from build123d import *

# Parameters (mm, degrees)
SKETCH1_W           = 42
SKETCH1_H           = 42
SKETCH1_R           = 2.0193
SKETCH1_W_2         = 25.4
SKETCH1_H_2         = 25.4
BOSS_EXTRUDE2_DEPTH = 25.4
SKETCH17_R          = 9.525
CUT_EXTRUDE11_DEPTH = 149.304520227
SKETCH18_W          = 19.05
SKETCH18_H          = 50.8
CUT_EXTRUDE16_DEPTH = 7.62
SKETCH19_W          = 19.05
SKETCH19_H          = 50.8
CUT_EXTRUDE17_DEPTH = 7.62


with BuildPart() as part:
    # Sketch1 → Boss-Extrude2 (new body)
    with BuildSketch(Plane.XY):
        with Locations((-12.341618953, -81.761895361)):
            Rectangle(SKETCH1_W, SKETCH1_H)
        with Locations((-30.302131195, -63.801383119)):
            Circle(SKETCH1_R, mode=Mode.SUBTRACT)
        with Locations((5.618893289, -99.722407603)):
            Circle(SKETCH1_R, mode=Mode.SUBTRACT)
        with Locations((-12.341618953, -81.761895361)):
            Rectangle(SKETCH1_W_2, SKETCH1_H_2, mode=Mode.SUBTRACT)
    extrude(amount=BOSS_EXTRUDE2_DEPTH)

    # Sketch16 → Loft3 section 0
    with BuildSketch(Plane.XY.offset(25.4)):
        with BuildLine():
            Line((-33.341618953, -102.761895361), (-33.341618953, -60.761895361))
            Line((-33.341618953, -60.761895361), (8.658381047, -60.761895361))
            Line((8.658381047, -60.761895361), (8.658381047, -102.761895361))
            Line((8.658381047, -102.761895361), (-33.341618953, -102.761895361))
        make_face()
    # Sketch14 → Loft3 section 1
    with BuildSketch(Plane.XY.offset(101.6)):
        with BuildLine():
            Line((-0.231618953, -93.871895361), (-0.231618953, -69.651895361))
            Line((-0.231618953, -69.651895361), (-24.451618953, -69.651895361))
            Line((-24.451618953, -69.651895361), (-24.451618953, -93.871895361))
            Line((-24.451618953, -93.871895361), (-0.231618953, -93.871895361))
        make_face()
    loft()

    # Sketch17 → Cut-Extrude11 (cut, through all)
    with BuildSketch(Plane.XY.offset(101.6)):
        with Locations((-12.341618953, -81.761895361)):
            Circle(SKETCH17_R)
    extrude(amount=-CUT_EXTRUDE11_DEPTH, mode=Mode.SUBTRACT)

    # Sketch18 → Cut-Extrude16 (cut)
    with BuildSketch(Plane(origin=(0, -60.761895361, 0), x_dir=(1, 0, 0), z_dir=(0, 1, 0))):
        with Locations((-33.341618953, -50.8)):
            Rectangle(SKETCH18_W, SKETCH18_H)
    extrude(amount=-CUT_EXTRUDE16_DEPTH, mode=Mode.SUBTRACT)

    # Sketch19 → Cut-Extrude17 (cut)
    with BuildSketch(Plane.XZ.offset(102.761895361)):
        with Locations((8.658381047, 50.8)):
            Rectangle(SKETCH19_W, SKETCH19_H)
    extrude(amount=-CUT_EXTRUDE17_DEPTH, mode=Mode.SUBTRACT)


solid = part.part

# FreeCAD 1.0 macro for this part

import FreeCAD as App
import Part
import Sketcher
Q = App.Units.Quantity

doc = App.newDocument("Part")
body = doc.addObject("PartDesign::Body", "Body")

# Sketch on XY plane
sketch1 = doc.addObject("Sketcher::SketchObject", "Sketch")
body.addObject(sketch1)
sketch1.AttachmentSupport = (doc.XY_Plane, [""])
sketch1.MapMode = "FlatFace"
sketch1.addGeometry([
    Part.LineSegment(App.Vector(-33.341619, -60.761895, 0), App.Vector(-33.341619, -102.761895, 0)),  # 0
    Part.LineSegment(App.Vector(-33.341619, -102.761895, 0), App.Vector(8.658381, -102.761895, 0)),  # 1
    Part.LineSegment(App.Vector(8.658381, -102.761895, 0), App.Vector(8.658381, -60.761895, 0)),  # 2
    Part.LineSegment(App.Vector(8.658381, -60.761895, 0), App.Vector(-33.341619, -60.761895, 0)),  # 3
    Part.Circle(App.Vector(5.618893, -99.722408, 0), App.Vector(0, 0, 1), 2.0193),  # 4
    Part.LineSegment(App.Vector(0.358381, -94.461895, 0), App.Vector(-25.041619, -94.461895, 0)),  # 5
    Part.LineSegment(App.Vector(-25.041619, -94.461895, 0), App.Vector(-25.041619, -69.061895, 0)),  # 6
    Part.LineSegment(App.Vector(-25.041619, -69.061895, 0), App.Vector(0.358381, -69.061895, 0)),  # 7
    Part.LineSegment(App.Vector(0.358381, -69.061895, 0), App.Vector(0.358381, -94.461895, 0)),  # 8
    Part.Circle(App.Vector(-30.302131, -63.801383, 0), App.Vector(0, 0, 1), 2.0193),  # 9
], False)
sketch1.addConstraint([
    Sketcher.Constraint("Coincident", 0, 2, 1, 1),
    Sketcher.Constraint("Coincident", 1, 2, 2, 1),
    Sketcher.Constraint("Coincident", 2, 2, 3, 1),
    Sketcher.Constraint("Coincident", 3, 2, 0, 1),
    Sketcher.Constraint("Coincident", 5, 2, 6, 1),
    Sketcher.Constraint("Coincident", 6, 2, 7, 1),
    Sketcher.Constraint("Coincident", 7, 2, 8, 1),
    Sketcher.Constraint("Coincident", 8, 2, 5, 1),
    Sketcher.Constraint("Vertical", 0),
    Sketcher.Constraint("Horizontal", 1),
    Sketcher.Constraint("Vertical", 2),
    Sketcher.Constraint("Horizontal", 3),
    Sketcher.Constraint("Horizontal", 5),
    Sketcher.Constraint("Vertical", 6),
    Sketcher.Constraint("Horizontal", 7),
    Sketcher.Constraint("Vertical", 8),
    Sketcher.Constraint("Equal", 4, 9),
    Sketcher.Constraint("Equal", 3, 0),
    Sketcher.Constraint("Equal", 7, 6),
    Sketcher.Constraint("DistanceX", 5, 2, 5, 1, Q("1 in")),
    Sketcher.Constraint("Diameter", 4, Q("0.159 in")),
    Sketcher.Constraint("DistanceX", 1, 1, 1, 2, 42.0),
    Sketcher.Constraint("DistanceX", 0, 2, 5, 2, 8.3),
    Sketcher.Constraint("DistanceY", 0, 2, 5, 2, 8.3),
    Sketcher.Constraint("DistanceX", 9, 3, -1, 1, 30.302131),
    Sketcher.Constraint("DistanceX", 0, 2, -1, 1, 33.341619),
    Sketcher.Constraint("DistanceX", -1, 1, 4, 3, 5.618893),
    Sketcher.Constraint("DistanceY", 4, 3, -1, 1, 99.722408),
    Sketcher.Constraint("DistanceY", 9, 3, -1, 1, 63.801383),
    Sketcher.Constraint("DistanceY", 0, 2, -1, 1, 102.761895),
])
pad1 = doc.addObject("PartDesign::Pad", "Pad")
body.addObject(pad1)
pad1.Profile = sketch1
pad1.Length = Q("1 in")

# Sketch on XY plane
sketch2 = doc.addObject("Sketcher::SketchObject", "Sketch001")
body.addObject(sketch2)
sketch2.AttachmentSupport = (doc.XY_Plane, [""])
sketch2.MapMode = "FlatFace"
sketch2.AttachmentOffset = App.Placement(App.Vector(0, 0, 1 * 25.4), App.Rotation())
sketch2.addGeometry([
    Part.LineSegment(App.Vector(-33.341619, -60.761895, 0), App.Vector(-33.341619, -102.761895, 0)),
    Part.LineSegment(App.Vector(-33.341619, -102.761895, 0), App.Vector(8.658381, -102.761895, 0)),
    Part.LineSegment(App.Vector(8.658381, -102.761895, 0), App.Vector(8.658381, -60.761895, 0)),
    Part.LineSegment(App.Vector(8.658381, -60.761895, 0), App.Vector(-33.341619, -60.761895, 0)),
], False)
sketch2.addConstraint([
    Sketcher.Constraint("Coincident", 0, 2, 1, 1),
    Sketcher.Constraint("Coincident", 1, 2, 2, 1),
    Sketcher.Constraint("Coincident", 2, 2, 3, 1),
    Sketcher.Constraint("Coincident", 3, 2, 0, 1),
    Sketcher.Constraint("Vertical", 0),
    Sketcher.Constraint("Horizontal", 1),
    Sketcher.Constraint("Vertical", 2),
    Sketcher.Constraint("Horizontal", 3),
    Sketcher.Constraint("Equal", 3, 0),
    Sketcher.Constraint("DistanceX", 1, 1, 1, 2, 42.0),
    Sketcher.Constraint("DistanceX", 0, 2, -1, 1, 33.341619),
    Sketcher.Constraint("DistanceY", 0, 2, -1, 1, 102.761895),
])

# Sketch on XY plane
sketch3 = doc.addObject("Sketcher::SketchObject", "Sketch002")
body.addObject(sketch3)
sketch3.AttachmentSupport = (doc.XY_Plane, [""])
sketch3.MapMode = "FlatFace"
sketch3.AttachmentOffset = App.Placement(App.Vector(0, 0, 4 * 25.4), App.Rotation())
sketch3.addGeometry([
    Part.LineSegment(App.Vector(-0.231619, -93.871895, 0), App.Vector(-0.231619, -69.651895, 0)),
    Part.LineSegment(App.Vector(-0.231619, -69.651895, 0), App.Vector(-24.451619, -69.651895, 0)),
    Part.LineSegment(App.Vector(-24.451619, -69.651895, 0), App.Vector(-24.451619, -93.871895, 0)),
    Part.LineSegment(App.Vector(-24.451619, -93.871895, 0), App.Vector(-0.231619, -93.871895, 0)),
], False)
sketch3.addConstraint([
    Sketcher.Constraint("Coincident", 0, 2, 1, 1),
    Sketcher.Constraint("Coincident", 1, 2, 2, 1),
    Sketcher.Constraint("Coincident", 2, 2, 3, 1),
    Sketcher.Constraint("Coincident", 3, 2, 0, 1),
    Sketcher.Constraint("Vertical", 0),
    Sketcher.Constraint("Horizontal", 1),
    Sketcher.Constraint("Vertical", 2),
    Sketcher.Constraint("Horizontal", 3),
    Sketcher.Constraint("Equal", 3, 0),
    Sketcher.Constraint("DistanceX", 1, 2, 1, 1, 24.22),
    Sketcher.Constraint("DistanceX", 0, 2, -1, 1, 0.231619),
    Sketcher.Constraint("DistanceY", 0, 2, -1, 1, 69.651895),
])

additiveloft = doc.addObject("PartDesign::AdditiveLoft", "AdditiveLoft")
body.addObject(additiveloft)
additiveloft.Profile = sketch2
additiveloft.Sections = [sketch3]

# Sketch on XY plane
sketch4 = doc.addObject("Sketcher::SketchObject", "Sketch003")
body.addObject(sketch4)
sketch4.AttachmentSupport = (doc.XY_Plane, [""])
sketch4.MapMode = "FlatFace"
sketch4.AttachmentOffset = App.Placement(App.Vector(0, 0, 4 * 25.4), App.Rotation())
sketch4.addGeometry(Part.Circle(App.Vector(-12.341619, -81.761895, 0), App.Vector(0, 0, 1), 9.525), False)
sketch4.addConstraint([
    Sketcher.Constraint("Diameter", 0, Q("0.75 in")),
    Sketcher.Constraint("DistanceX", 0, 3, -1, 1, 12.341619),
    Sketcher.Constraint("DistanceY", 0, 3, -1, 1, 81.761895),
])
pocket1 = doc.addObject("PartDesign::Pocket", "Pocket")
body.addObject(pocket1)
pocket1.Profile = sketch4
pocket1.Type = "ThroughAll"

# Sketch on XZ plane
sketch5 = doc.addObject("Sketcher::SketchObject", "Sketch004")
body.addObject(sketch5)
sketch5.AttachmentSupport = (doc.XZ_Plane, [""])
sketch5.MapMode = "FlatFace"
sketch5.AttachmentOffset = App.Placement(App.Vector(0, 0, 60.761895), App.Rotation())
sketch5.addGeometry([
    Part.LineSegment(App.Vector(-42.866619, 25.4, 0), App.Vector(-42.866619, 76.2, 0)),
    Part.LineSegment(App.Vector(-42.866619, 76.2, 0), App.Vector(-23.816619, 76.2, 0)),
    Part.LineSegment(App.Vector(-23.816619, 76.2, 0), App.Vector(-23.816619, 25.4, 0)),
    Part.LineSegment(App.Vector(-23.816619, 25.4, 0), App.Vector(-42.866619, 25.4, 0)),
], False)
sketch5.addConstraint([
    Sketcher.Constraint("Coincident", 0, 2, 1, 1),
    Sketcher.Constraint("Coincident", 1, 2, 2, 1),
    Sketcher.Constraint("Coincident", 2, 2, 3, 1),
    Sketcher.Constraint("Coincident", 3, 2, 0, 1),
    Sketcher.Constraint("Vertical", 0),
    Sketcher.Constraint("Horizontal", 1),
    Sketcher.Constraint("Vertical", 2),
    Sketcher.Constraint("Horizontal", 3),
    Sketcher.Constraint("DistanceY", 0, 1, 0, 2, Q("2 in")),
    Sketcher.Constraint("DistanceY", -1, 1, 0, 2, Q("3 in")),
    Sketcher.Constraint("DistanceX", 1, 1, 1, 2, Q("0.75 in")),
    Sketcher.Constraint("DistanceX", 0, 2, -1, 1, 42.866619),
])
pocket2 = doc.addObject("PartDesign::Pocket", "Pocket001")
body.addObject(pocket2)
pocket2.Profile = sketch5
pocket2.Length = Q("0.3 in")
pocket2.Reversed = True

# Sketch on XZ plane
sketch6 = doc.addObject("Sketcher::SketchObject", "Sketch005")
body.addObject(sketch6)
sketch6.AttachmentSupport = (doc.XZ_Plane, [""])
sketch6.MapMode = "FlatFace"
sketch6.AttachmentOffset = App.Placement(App.Vector(0, 0, 102.761895), App.Rotation())
sketch6.addGeometry([
    Part.LineSegment(App.Vector(-0.866619, 76.2, 0), App.Vector(-0.866619, 25.4, 0)),
    Part.LineSegment(App.Vector(-0.866619, 25.4, 0), App.Vector(18.183381, 25.4, 0)),
    Part.LineSegment(App.Vector(18.183381, 25.4, 0), App.Vector(18.183381, 76.2, 0)),
    Part.LineSegment(App.Vector(18.183381, 76.2, 0), App.Vector(-0.866619, 76.2, 0)),
], False)
sketch6.addConstraint([
    Sketcher.Constraint("Coincident", 0, 2, 1, 1),
    Sketcher.Constraint("Coincident", 1, 2, 2, 1),
    Sketcher.Constraint("Coincident", 2, 2, 3, 1),
    Sketcher.Constraint("Coincident", 3, 2, 0, 1),
    Sketcher.Constraint("Vertical", 0),
    Sketcher.Constraint("Horizontal", 1),
    Sketcher.Constraint("Vertical", 2),
    Sketcher.Constraint("Horizontal", 3),
    Sketcher.Constraint("DistanceY", 0, 2, 0, 1, Q("2 in")),
    Sketcher.Constraint("DistanceY", -1, 1, 0, 2, Q("1 in")),
    Sketcher.Constraint("DistanceX", 1, 1, 1, 2, Q("0.75 in")),
    Sketcher.Constraint("DistanceX", 0, 2, -1, 1, 0.866619),
])
pocket3 = doc.addObject("PartDesign::Pocket", "Pocket002")
body.addObject(pocket3)
pocket3.Profile = sketch6
pocket3.Length = Q("0.3 in")

doc.recompute()
